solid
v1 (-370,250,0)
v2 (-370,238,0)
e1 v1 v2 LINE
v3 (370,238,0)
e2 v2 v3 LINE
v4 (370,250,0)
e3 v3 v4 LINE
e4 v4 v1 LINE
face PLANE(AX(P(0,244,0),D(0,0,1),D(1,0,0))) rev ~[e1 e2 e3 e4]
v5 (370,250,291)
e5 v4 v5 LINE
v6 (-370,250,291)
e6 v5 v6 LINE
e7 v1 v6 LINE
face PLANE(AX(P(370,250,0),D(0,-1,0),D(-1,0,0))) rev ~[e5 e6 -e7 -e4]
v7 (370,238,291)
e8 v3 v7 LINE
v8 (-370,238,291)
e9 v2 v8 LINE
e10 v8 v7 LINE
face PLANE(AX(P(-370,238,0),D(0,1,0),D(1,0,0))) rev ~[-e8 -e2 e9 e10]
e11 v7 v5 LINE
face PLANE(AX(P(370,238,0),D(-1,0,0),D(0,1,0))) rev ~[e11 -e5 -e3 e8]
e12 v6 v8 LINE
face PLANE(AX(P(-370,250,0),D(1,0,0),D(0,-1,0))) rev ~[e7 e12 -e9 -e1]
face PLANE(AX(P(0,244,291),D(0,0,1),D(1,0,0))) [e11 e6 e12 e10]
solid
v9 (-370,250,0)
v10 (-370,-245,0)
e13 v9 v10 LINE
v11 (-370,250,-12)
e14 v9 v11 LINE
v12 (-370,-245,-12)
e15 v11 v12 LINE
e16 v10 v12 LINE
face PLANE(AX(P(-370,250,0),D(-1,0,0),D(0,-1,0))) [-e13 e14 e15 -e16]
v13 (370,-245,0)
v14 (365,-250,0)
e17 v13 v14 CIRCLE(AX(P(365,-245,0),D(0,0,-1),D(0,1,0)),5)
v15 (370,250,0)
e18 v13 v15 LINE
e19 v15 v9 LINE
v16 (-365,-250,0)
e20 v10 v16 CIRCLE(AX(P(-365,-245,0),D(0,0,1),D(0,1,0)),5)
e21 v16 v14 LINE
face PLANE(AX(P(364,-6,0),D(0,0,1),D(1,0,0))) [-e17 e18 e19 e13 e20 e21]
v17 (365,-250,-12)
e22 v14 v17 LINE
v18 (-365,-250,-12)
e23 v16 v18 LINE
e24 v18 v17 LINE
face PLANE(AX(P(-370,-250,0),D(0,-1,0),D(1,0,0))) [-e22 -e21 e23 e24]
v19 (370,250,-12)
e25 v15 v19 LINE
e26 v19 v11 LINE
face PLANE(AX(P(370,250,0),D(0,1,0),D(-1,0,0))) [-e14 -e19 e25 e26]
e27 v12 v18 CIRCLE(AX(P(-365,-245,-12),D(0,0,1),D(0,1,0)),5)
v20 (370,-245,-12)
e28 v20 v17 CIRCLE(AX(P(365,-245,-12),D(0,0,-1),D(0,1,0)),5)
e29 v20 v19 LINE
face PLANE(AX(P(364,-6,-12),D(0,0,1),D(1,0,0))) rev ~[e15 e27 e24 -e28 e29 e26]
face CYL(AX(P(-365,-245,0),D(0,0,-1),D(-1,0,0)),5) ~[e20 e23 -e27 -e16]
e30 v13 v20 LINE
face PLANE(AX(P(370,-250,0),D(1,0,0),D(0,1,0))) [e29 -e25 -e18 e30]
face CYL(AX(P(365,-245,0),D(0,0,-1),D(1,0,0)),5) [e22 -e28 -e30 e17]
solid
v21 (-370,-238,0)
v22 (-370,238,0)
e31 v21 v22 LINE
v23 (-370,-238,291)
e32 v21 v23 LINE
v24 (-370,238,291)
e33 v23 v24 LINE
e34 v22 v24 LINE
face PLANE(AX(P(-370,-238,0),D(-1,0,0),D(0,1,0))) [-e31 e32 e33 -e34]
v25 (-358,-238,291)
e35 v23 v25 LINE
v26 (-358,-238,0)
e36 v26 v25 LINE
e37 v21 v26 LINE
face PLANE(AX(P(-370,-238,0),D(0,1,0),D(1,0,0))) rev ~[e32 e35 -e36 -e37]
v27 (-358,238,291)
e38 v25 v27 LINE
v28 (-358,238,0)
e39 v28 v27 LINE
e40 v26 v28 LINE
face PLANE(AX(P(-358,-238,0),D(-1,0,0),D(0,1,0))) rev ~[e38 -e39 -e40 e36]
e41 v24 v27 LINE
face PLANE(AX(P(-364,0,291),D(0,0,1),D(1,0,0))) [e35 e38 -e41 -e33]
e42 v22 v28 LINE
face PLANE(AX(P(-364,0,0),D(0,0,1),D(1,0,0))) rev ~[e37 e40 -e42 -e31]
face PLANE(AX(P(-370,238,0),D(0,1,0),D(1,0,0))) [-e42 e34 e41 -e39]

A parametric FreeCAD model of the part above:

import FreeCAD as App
import Part
import Sketcher

V = App.Vector


def edges_at(feature, points):
    """Names of the edges that pass closest to the given points."""
    edges = feature.Shape.Edges
    near = lambda p: min(range(len(edges)), key=lambda i: edges[i].distToShape(Part.Vertex(*p))[0])
    return sorted({f"Edge{near(p) + 1}" for p in points})


def add_polygon(sketch, points):
    """Adds a closed chain of lines whose ends are joined by coincident constraints."""
    first, n = sketch.GeometryCount, len(points)
    for a, b in zip(points, points[1:] + points[:1]):
        sketch.addGeometry(Part.LineSegment(App.Vector(*a, 0), App.Vector(*b, 0)), False)
    for i in range(n):
        sketch.addConstraint(Sketcher.Constraint("Coincident", first + i, 2, first + (i + 1) % n, 1))

doc = App.newDocument("Part")
params = doc.addObject("Spreadsheet::Sheet", "Params")
for row, (alias, value) in enumerate([
    ("sketch1_width", "740 mm"),
    ("sketch1_height", "500 mm"),
    ("pad1_length", "12 mm"),
    ("fillet_radius", "5 mm"),
    ("sketch2_width", "740 mm"),
    ("sketch2_height", "12 mm"),
    ("pad2_length", "291 mm"),
    ("sketch3_width", "12 mm"),
    ("sketch3_height", "476 mm"),
    ("pad3_length", "291 mm"),
], start=1):
    params.set(f"A{row}", alias)
    params.set(f"B{row}", "=" + value)
    params.setAlias(f"B{row}", alias)

body = doc.addObject("PartDesign::Body", "Body")

# Sketch on XY plane
sketch1 = doc.addObject("Sketcher::SketchObject", "Sketch")
body.addObject(sketch1)
sketch1.AttachmentSupport = (doc.XY_Plane, [""])
sketch1.MapMode = "FlatFace"
add_polygon(sketch1, [(370, -250), (370, 250), (-370, 250), (-370, -250)])  # lines 0-3
sketch1.addConstraint([
    Sketcher.Constraint("Vertical", 0),
    Sketcher.Constraint("Horizontal", 1),
    Sketcher.Constraint("Vertical", 2),
    Sketcher.Constraint("Horizontal", 3),
    Sketcher.Constraint("Symmetric", 0, 2, 2, 2, -1, 1),
    Sketcher.Constraint("DistanceX", 1, 2, 1, 1, 740.0),
    Sketcher.Constraint("DistanceY", 0, 1, 0, 2, 500.0),
])
sketch1.setExpression("Constraints[9]", "Params.sketch1_width")
sketch1.setExpression("Constraints[10]", "Params.sketch1_height")
pad1 = doc.addObject("PartDesign::Pad", "Pad")
body.addObject(pad1)
pad1.Profile = sketch1
pad1.setExpression("Length", "Params.pad1_length")
pad1.Reversed = True
doc.recompute()

fillet = doc.addObject("PartDesign::Fillet", "Fillet")
body.addObject(fillet)
fillet.Base = (pad1, edges_at(pad1, [(370, -250, -6), (-370, -250, -6)]))
fillet.setExpression("Radius", "Params.fillet_radius")
body2 = doc.addObject("PartDesign::Body", "Body001")

# Sketch on XY plane
sketch2 = doc.addObject("Sketcher::SketchObject", "Sketch001")
body2.addObject(sketch2)
sketch2.AttachmentSupport = (doc.getObject("XY_Plane001"), [""])
sketch2.MapMode = "FlatFace"
add_polygon(sketch2, [(370, 238), (370, 250), (-370, 250), (-370, 238)])  # lines 0-3
sketch2.addConstraint([
    Sketcher.Constraint("Vertical", 0),
    Sketcher.Constraint("Horizontal", 1),
    Sketcher.Constraint("Vertical", 2),
    Sketcher.Constraint("Horizontal", 3),
    Sketcher.Constraint("DistanceX", 1, 2, 1, 1, 740.0),
    Sketcher.Constraint("DistanceY", 0, 1, 0, 2, 12.0),
    Sketcher.Constraint("DistanceX", -1, 1, 0, 2, 370.0),
    Sketcher.Constraint("DistanceY", -1, 1, 0, 2, 250.0),
])
sketch2.setExpression("Constraints[8]", "Params.sketch2_width")
sketch2.setExpression("Constraints[9]", "Params.sketch2_height")
pad2 = doc.addObject("PartDesign::Pad", "Pad001")
body2.addObject(pad2)
pad2.Profile = sketch2
pad2.setExpression("Length", "Params.pad2_length")
body3 = doc.addObject("PartDesign::Body", "Body002")

# Sketch on XY plane
sketch3 = doc.addObject("Sketcher::SketchObject", "Sketch002")
body3.addObject(sketch3)
sketch3.AttachmentSupport = (doc.getObject("XY_Plane002"), [""])
sketch3.MapMode = "FlatFace"
add_polygon(sketch3, [(-370, 238), (-370, -238), (-358, -238), (-358, 238)])  # lines 0-3
sketch3.addConstraint([
    Sketcher.Constraint("Vertical", 0),
    Sketcher.Constraint("Horizontal", 1),
    Sketcher.Constraint("Vertical", 2),
    Sketcher.Constraint("Horizontal", 3),
    Sketcher.Constraint("DistanceX", 1, 1, 1, 2, 12.0),
    Sketcher.Constraint("DistanceY", 0, 2, 0, 1, 476.0),
    Sketcher.Constraint("DistanceX", 0, 2, -1, 1, 370.0),
    Sketcher.Constraint("DistanceY", 0, 2, -1, 1, 238.0),
])
sketch3.setExpression("Constraints[8]", "Params.sketch3_width")
sketch3.setExpression("Constraints[9]", "Params.sketch3_height")
pad3 = doc.addObject("PartDesign::Pad", "Pad002")
body3.addObject(pad3)
pad3.Profile = sketch3
pad3.setExpression("Length", "Params.pad3_length")

doc.recompute()
